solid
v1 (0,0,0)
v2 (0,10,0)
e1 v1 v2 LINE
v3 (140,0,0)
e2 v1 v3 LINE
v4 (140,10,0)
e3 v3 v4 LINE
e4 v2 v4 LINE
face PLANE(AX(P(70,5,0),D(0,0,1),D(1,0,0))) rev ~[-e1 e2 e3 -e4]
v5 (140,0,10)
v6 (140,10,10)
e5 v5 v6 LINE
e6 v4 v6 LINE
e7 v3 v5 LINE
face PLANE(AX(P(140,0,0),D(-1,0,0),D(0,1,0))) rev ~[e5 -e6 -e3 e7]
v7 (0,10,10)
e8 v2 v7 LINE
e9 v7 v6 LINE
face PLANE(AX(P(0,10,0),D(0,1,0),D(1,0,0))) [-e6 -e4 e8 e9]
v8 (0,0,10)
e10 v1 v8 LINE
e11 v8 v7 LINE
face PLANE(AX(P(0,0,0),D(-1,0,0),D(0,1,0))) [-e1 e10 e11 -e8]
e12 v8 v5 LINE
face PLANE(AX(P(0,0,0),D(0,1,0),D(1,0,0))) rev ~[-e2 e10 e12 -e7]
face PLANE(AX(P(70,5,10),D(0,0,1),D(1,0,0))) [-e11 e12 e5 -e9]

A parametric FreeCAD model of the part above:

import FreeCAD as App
import Part
import Sketcher

doc = App.newDocument("Part")
body = doc.addObject("PartDesign::Body", "Body")

# Sketch on XY plane
sketch1 = body.newObject("Sketcher::SketchObject", "Sketch")
sketch1.AttachmentSupport = (doc.getObject("XY_Plane"), [""])
sketch1.MapMode = "FlatFace"
sketch1.addGeometry([
    Part.LineSegment(App.Vector(0, 10, 0), App.Vector(0, 0, 0)),
    Part.LineSegment(App.Vector(0, 0, 0), App.Vector(140, 0, 0)),
    Part.LineSegment(App.Vector(140, 0, 0), App.Vector(140, 10, 0)),
    Part.LineSegment(App.Vector(140, 10, 0), App.Vector(0, 10, 0)),
], False)
sketch1.addConstraint([
    Sketcher.Constraint("Coincident", 0, 2, 1, 1),
    Sketcher.Constraint("Coincident", 1, 2, 2, 1),
    Sketcher.Constraint("Coincident", 2, 2, 3, 1),
    Sketcher.Constraint("Coincident", 3, 2, 0, 1),
    Sketcher.Constraint("Vertical", 0),
    Sketcher.Constraint("Horizontal", 1),
    Sketcher.Constraint("Vertical", 2),
    Sketcher.Constraint("Horizontal", 3),
    Sketcher.Constraint("Coincident", 0, 2, -1, 1),
    Sketcher.Constraint("DistanceX", 1, 1, 1, 2, 140.0),
    Sketcher.Constraint("DistanceY", 0, 2, 0, 1, 10.0),
])
pad1 = body.newObject("PartDesign::Pad", "Pad")
pad1.Profile = sketch1
pad1.Length = 10

doc.recompute()
